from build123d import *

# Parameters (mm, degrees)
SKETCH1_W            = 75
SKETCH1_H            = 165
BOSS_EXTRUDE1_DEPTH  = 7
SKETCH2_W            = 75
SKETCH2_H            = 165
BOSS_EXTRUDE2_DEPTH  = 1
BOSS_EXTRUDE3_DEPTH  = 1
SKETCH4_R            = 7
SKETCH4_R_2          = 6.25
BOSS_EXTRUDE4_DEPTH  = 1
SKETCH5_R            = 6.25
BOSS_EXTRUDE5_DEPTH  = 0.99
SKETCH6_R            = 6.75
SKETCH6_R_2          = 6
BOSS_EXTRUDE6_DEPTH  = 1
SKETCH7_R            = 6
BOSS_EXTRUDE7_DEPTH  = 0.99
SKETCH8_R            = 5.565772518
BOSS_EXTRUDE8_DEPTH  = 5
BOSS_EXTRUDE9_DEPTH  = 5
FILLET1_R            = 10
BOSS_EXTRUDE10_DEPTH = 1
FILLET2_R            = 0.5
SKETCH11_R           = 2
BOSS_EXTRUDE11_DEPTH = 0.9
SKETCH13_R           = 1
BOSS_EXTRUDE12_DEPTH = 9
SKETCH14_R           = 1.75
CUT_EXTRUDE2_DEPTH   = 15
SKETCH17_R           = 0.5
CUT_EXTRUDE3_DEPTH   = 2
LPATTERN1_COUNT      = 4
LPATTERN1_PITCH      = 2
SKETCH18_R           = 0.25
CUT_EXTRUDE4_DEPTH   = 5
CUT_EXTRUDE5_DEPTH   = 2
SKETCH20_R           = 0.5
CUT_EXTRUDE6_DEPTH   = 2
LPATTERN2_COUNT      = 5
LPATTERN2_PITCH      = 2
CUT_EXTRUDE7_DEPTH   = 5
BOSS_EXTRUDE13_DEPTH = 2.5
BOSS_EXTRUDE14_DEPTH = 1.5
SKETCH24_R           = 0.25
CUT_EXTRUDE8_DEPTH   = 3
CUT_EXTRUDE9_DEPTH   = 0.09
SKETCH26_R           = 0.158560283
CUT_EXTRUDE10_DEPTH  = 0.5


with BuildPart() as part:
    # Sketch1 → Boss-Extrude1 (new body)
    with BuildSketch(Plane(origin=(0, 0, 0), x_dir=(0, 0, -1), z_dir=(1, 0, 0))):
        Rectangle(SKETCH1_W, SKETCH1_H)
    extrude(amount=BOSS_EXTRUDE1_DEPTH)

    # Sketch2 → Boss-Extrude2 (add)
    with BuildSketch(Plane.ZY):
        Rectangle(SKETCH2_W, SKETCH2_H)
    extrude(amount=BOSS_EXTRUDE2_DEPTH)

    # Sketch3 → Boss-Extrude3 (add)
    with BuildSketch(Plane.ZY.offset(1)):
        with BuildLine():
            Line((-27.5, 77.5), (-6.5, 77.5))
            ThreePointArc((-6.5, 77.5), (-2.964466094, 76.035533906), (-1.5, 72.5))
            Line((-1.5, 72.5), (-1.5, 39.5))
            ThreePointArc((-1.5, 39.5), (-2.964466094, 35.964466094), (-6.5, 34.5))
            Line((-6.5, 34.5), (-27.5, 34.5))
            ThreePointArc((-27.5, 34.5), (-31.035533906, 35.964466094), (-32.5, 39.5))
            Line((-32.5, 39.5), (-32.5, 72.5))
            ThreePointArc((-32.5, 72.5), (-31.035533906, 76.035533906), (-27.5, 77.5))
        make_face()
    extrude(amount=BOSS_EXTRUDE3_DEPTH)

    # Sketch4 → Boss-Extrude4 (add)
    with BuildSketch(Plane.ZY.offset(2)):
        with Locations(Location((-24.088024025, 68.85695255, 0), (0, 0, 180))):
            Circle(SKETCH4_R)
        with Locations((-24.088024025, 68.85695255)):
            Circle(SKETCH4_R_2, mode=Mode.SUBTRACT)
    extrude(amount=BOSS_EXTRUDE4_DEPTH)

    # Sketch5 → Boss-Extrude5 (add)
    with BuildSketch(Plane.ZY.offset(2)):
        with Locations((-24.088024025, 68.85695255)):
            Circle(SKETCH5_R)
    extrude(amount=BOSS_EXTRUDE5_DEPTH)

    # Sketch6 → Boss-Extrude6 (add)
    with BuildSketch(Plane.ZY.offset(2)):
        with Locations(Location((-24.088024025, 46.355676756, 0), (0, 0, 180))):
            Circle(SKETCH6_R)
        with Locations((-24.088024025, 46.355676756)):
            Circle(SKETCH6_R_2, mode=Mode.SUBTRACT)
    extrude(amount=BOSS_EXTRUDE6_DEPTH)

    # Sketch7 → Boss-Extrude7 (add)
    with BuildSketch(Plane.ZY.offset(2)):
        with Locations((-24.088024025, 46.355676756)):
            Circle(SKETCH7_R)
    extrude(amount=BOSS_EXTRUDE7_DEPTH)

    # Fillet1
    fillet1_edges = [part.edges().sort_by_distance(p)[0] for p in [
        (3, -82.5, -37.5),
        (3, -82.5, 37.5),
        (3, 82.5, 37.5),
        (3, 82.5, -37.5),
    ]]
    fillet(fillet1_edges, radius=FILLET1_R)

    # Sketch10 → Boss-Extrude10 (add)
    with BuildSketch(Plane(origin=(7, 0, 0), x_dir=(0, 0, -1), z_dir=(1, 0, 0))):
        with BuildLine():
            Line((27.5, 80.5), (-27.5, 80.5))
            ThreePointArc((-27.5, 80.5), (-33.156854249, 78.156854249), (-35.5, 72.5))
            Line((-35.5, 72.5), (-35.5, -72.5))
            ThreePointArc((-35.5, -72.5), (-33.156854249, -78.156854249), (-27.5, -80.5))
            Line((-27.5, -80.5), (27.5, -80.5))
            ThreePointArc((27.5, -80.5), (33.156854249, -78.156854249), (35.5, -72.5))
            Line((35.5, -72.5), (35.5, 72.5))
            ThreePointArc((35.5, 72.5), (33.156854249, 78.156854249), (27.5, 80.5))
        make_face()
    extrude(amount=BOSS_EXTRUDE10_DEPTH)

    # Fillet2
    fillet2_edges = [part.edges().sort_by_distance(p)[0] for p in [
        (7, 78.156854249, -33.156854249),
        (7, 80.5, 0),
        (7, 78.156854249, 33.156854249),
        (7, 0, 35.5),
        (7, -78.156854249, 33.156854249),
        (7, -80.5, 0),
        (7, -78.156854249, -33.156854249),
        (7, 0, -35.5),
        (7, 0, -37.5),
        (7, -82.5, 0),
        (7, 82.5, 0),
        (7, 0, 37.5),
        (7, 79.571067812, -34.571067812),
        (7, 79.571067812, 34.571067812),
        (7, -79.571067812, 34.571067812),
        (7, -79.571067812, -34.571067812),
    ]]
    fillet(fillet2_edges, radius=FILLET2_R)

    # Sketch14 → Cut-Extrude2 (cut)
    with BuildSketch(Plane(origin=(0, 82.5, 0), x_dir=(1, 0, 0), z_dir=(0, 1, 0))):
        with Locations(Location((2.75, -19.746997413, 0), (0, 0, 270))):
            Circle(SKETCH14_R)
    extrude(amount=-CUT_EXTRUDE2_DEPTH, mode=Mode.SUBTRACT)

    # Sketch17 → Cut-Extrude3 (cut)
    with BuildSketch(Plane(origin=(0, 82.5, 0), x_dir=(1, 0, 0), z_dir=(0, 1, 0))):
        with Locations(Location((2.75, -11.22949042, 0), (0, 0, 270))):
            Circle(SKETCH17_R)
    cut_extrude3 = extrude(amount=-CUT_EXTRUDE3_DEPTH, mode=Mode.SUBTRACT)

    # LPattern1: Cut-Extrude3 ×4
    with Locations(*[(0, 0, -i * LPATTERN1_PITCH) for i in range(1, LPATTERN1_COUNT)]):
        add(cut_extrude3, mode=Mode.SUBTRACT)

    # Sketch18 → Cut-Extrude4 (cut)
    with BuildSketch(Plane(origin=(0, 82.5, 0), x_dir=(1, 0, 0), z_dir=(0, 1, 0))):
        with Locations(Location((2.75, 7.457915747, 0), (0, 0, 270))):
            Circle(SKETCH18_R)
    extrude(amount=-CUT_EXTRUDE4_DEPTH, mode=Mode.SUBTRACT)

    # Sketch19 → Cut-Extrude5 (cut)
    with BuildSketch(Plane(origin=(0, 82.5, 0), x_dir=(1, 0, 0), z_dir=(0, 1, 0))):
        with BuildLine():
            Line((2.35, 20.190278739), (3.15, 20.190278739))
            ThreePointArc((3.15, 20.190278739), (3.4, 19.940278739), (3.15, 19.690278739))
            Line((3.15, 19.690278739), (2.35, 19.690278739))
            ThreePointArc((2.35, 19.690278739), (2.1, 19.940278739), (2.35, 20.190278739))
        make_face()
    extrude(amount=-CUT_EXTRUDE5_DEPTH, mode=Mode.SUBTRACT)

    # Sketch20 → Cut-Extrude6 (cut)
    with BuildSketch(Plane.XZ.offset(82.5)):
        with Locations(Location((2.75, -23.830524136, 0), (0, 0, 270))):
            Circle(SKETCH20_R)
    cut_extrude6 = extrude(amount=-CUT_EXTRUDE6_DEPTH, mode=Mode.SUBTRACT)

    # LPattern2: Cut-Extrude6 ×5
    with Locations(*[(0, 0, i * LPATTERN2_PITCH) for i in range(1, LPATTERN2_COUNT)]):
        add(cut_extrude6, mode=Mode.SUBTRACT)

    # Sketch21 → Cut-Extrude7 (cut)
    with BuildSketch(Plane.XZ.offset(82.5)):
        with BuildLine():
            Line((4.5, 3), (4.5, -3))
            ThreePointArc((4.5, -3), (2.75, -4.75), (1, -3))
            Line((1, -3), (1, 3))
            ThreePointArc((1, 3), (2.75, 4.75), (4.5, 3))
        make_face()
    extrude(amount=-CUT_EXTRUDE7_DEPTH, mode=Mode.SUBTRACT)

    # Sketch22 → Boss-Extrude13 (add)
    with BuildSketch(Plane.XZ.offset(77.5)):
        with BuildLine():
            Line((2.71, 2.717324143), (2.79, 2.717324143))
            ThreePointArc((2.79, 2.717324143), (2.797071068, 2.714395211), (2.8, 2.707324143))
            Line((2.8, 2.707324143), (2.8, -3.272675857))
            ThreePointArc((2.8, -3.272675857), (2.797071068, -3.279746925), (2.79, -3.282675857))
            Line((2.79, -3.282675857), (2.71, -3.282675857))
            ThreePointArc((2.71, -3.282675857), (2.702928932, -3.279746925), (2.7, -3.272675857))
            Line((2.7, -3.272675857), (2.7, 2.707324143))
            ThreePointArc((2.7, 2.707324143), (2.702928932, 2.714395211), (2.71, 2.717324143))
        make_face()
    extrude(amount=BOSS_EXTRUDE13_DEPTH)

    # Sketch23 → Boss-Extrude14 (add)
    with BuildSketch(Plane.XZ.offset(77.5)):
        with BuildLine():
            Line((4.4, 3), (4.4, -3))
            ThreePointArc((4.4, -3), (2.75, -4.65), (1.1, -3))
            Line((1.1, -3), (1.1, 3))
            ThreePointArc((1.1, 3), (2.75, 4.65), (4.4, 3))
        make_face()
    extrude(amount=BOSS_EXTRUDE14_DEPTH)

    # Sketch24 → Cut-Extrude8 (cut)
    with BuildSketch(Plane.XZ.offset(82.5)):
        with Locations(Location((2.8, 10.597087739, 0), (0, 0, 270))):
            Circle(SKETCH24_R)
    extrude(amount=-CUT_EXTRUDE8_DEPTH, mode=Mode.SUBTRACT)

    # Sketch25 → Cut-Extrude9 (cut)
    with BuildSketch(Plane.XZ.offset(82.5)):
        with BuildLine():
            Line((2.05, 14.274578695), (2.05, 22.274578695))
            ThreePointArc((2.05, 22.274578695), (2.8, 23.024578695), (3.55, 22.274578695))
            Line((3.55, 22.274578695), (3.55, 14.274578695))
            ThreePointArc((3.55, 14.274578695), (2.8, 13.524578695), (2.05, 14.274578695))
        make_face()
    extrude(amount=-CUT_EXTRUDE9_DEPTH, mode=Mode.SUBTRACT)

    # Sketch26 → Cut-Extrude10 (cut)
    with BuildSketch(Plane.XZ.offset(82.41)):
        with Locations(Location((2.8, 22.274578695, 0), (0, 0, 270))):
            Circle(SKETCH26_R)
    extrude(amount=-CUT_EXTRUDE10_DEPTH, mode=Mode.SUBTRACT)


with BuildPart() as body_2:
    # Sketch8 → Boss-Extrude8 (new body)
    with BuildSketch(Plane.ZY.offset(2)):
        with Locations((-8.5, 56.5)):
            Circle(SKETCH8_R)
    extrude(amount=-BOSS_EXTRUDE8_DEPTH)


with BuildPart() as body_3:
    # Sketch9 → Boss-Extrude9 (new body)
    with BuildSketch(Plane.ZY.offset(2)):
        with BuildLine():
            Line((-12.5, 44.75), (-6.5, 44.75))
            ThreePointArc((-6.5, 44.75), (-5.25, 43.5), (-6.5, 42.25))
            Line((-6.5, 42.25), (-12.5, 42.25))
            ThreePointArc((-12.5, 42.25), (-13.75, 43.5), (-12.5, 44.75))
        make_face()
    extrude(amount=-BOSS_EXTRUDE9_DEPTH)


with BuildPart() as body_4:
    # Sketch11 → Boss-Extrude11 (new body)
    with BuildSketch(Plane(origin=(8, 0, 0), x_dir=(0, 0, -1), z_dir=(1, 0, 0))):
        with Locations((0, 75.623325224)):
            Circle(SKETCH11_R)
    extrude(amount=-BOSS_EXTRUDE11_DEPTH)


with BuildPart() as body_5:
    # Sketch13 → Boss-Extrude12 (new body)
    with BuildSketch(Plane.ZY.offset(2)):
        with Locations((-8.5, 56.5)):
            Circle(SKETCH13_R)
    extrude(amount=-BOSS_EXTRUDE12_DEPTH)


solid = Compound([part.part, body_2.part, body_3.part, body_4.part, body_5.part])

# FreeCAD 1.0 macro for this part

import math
import FreeCAD as App
import Part
import Sketcher

V = App.Vector


def edges_at(feature, points):
    """Names of the edges that pass closest to the given points."""
    edges = feature.Shape.Edges
    near = lambda p: min(range(len(edges)), key=lambda i: edges[i].distToShape(Part.Vertex(*p))[0])
    return sorted({f"Edge{near(p) + 1}" for p in points})


def add_polygon(sketch, points):
    """Adds a closed chain of lines whose ends are joined by coincident constraints."""
    first, n = sketch.GeometryCount, len(points)
    for a, b in zip(points, points[1:] + points[:1]):
        sketch.addGeometry(Part.LineSegment(App.Vector(*a, 0), App.Vector(*b, 0)), False)
    for i in range(n):
        sketch.addConstraint(Sketcher.Constraint("Coincident", first + i, 2, first + (i + 1) % n, 1))

doc = App.newDocument("Part")
body = doc.addObject("PartDesign::Body", "Body")

sketch1 = body.newObject("Sketcher::SketchObject", "Sketch")
sketch1.AttachmentSupport = (doc.getObject("YZ_Plane"), [""])
sketch1.MapMode = "FlatFace"
add_polygon(sketch1, [(82, 38), (-82, 38), (-82, -38), (82, -38)])
sketch1.addConstraint([
    Sketcher.Constraint("Horizontal", 0),
    Sketcher.Constraint("Vertical", 1),
    Sketcher.Constraint("Horizontal", 2),
    Sketcher.Constraint("Vertical", 3),
    Sketcher.Constraint("Symmetric", 0, 2, 2, 2, -1, 1),
    Sketcher.Constraint("DistanceX", 0, 2, 0, 1, 165.0),
    Sketcher.Constraint("DistanceY", 1, 2, 1, 1, 75.0),
])
pad1 = body.newObject("PartDesign::Pad", "Pad")
pad1.Profile = sketch1
pad1.Length = 7

sketch2 = body.newObject("Sketcher::SketchObject", "Sketch001")
sketch2.AttachmentSupport = (doc.getObject("YZ_Plane"), [""])
sketch2.MapMode = "FlatFace"
add_polygon(sketch2, [(82, -38), (-82, -38), (-82, 38), (82, 38)])
sketch2.addConstraint([
    Sketcher.Constraint("Horizontal", 0),
    Sketcher.Constraint("Vertical", 1),
    Sketcher.Constraint("Horizontal", 2),
    Sketcher.Constraint("Vertical", 3),
    Sketcher.Constraint("Symmetric", 0, 2, 2, 2, -1, 1),
    Sketcher.Constraint("DistanceX", 0, 2, 0, 1, 165.0),
    Sketcher.Constraint("DistanceY", 1, 1, 1, 2, 75.0),
])
pad2 = body.newObject("PartDesign::Pad", "Pad001")
pad2.Profile = sketch2
pad2.Length = 1
pad2.Reversed = True

sketch3 = body.newObject("Sketcher::SketchObject", "Sketch002")
sketch3.AttachmentSupport = (doc.getObject("YZ_Plane"), [""])
sketch3.MapMode = "FlatFace"
sketch3.AttachmentOffset = App.Placement(V(0, 0, -1), App.Rotation())
sketch3.addGeometry([
    Part.LineSegment(V(78, -6, 0), V(78, -28, 0)),
    Part.ArcOfCircle(Part.Circle(V(72, -28, 0), V(0, 0, 1), 5), math.radians(-90), math.radians(0)),
    Part.LineSegment(V(72, -32, 0), V(40, -32, 0)),
    Part.ArcOfCircle(Part.Circle(V(40, -28, 0), V(0, 0, 1), 5), math.radians(180), math.radians(270)),
    Part.LineSegment(V(34, -28, 0), V(34, -6, 0)),
    Part.ArcOfCircle(Part.Circle(V(40, -6, 0), V(0, 0, 1), 5), math.radians(90), math.radians(180)),
    Part.LineSegment(V(40, -2, 0), V(72, -2, 0)),
    Part.ArcOfCircle(Part.Circle(V(72, -6, 0), V(0, 0, 1), 5), math.radians(0), math.radians(90)),
], False)
sketch3.addConstraint([
    Sketcher.Constraint("Tangent", 0, 2, 1, 2),
    Sketcher.Constraint("Tangent", 1, 1, 2, 1),
    Sketcher.Constraint("Tangent", 2, 2, 3, 2),
    Sketcher.Constraint("Tangent", 3, 1, 4, 1),
    Sketcher.Constraint("Tangent", 4, 2, 5, 2),
    Sketcher.Constraint("Tangent", 5, 1, 6, 1),
    Sketcher.Constraint("Tangent", 6, 2, 7, 2),
    Sketcher.Constraint("Tangent", 7, 1, 0, 1),
    Sketcher.Constraint("Vertical", 0),
    Sketcher.Constraint("Horizontal", 2),
    Sketcher.Constraint("Vertical", 4),
    Sketcher.Constraint("Horizontal", 6),
    Sketcher.Constraint("Equal", 1, 3),
    Sketcher.Constraint("Equal", 3, 5),
    Sketcher.Constraint("Equal", 5, 7),
    Sketcher.Constraint("Radius", 1, 5.0),
    Sketcher.Constraint("DistanceX", 2, 2, 2, 1, 33.0),
    Sketcher.Constraint("DistanceY", 0, 2, 0, 1, 21.0),
    Sketcher.Constraint("DistanceX", -1, 1, 1, 3, 72.5),
    Sketcher.Constraint("DistanceY", 1, 3, -1, 1, 27.5),
])
pad3 = body.newObject("PartDesign::Pad", "Pad002")
pad3.Profile = sketch3
pad3.Length = 1
pad3.Reversed = True

sketch4 = body.newObject("Sketcher::SketchObject", "Sketch003")
sketch4.AttachmentSupport = (doc.getObject("YZ_Plane"), [""])
sketch4.MapMode = "FlatFace"
sketch4.AttachmentOffset = App.Placement(V(0, 0, -2), App.Rotation())
sketch4.addGeometry([
    Part.Circle(V(69, -24, 0), V(0, 0, 1), 7),
    Part.Circle(V(69, -24, 0), V(0, 0, 1), 6),
], False)
sketch4.addConstraint([
    Sketcher.Constraint("Coincident", 1, 3, 0, 3),
    Sketcher.Constraint("Diameter", 0, 14.0),
    Sketcher.Constraint("Diameter", 1, 12.5),
    Sketcher.Constraint("DistanceX", -1, 1, 0, 3, 68.856953),
    Sketcher.Constraint("DistanceY", 0, 3, -1, 1, 24.088024),
])
pad4 = body.newObject("PartDesign::Pad", "Pad003")
pad4.Profile = sketch4
pad4.Length = 1
pad4.Reversed = True

sketch5 = body.newObject("Sketcher::SketchObject", "Sketch004")
sketch5.AttachmentSupport = (doc.getObject("YZ_Plane"), [""])
sketch5.MapMode = "FlatFace"
sketch5.AttachmentOffset = App.Placement(V(0, 0, -2), App.Rotation())
sketch5.addGeometry(Part.Circle(V(69, -24, 0), V(0, 0, 1), 6), False)
sketch5.addConstraint([
    Sketcher.Constraint("Diameter", 0, 12.5),
    Sketcher.Constraint("DistanceX", -1, 1, 0, 3, 68.856953),
    Sketcher.Constraint("DistanceY", 0, 3, -1, 1, 24.088024),
])
pad5 = body.newObject("PartDesign::Pad", "Pad004")
pad5.Profile = sketch5
pad5.Length = 0.99
pad5.Reversed = True

sketch6 = body.newObject("Sketcher::SketchObject", "Sketch005")
sketch6.AttachmentSupport = (doc.getObject("YZ_Plane"), [""])
sketch6.MapMode = "FlatFace"
sketch6.AttachmentOffset = App.Placement(V(0, 0, -2), App.Rotation())
sketch6.addGeometry([
    Part.Circle(V(46, -24, 0), V(0, 0, 1), 7),
    Part.Circle(V(46, -24, 0), V(0, 0, 1), 6),
], False)
sketch6.addConstraint([
    Sketcher.Constraint("Coincident", 1, 3, 0, 3),
    Sketcher.Constraint("Diameter", 1, 12.0),
    Sketcher.Constraint("Diameter", 0, 13.5),
    Sketcher.Constraint("DistanceX", -1, 1, 0, 3, 46.355677),
    Sketcher.Constraint("DistanceY", 0, 3, -1, 1, 24.088024),
])
pad6 = body.newObject("PartDesign::Pad", "Pad005")
pad6.Profile = sketch6
pad6.Length = 1
pad6.Reversed = True

sketch7 = body.newObject("Sketcher::SketchObject", "Sketch006")
sketch7.AttachmentSupport = (doc.getObject("YZ_Plane"), [""])
sketch7.MapMode = "FlatFace"
sketch7.AttachmentOffset = App.Placement(V(0, 0, -2), App.Rotation())
sketch7.addGeometry(Part.Circle(V(46, -24, 0), V(0, 0, 1), 6), False)
sketch7.addConstraint([
    Sketcher.Constraint("Diameter", 0, 12.0),
    Sketcher.Constraint("DistanceX", -1, 1, 0, 3, 46.355677),
    Sketcher.Constraint("DistanceY", 0, 3, -1, 1, 24.088024),
])
pad7 = body.newObject("PartDesign::Pad", "Pad006")
pad7.Profile = sketch7
pad7.Length = 0.99
pad7.Reversed = True
doc.recompute()

fillet = body.newObject("PartDesign::Fillet", "Fillet")
fillet.Base = (pad7, edges_at(pad7, [
    (3, -82.5, -37.5),
    (3, -82.5, 37.5),
    (3, 82.5, 37.5),
    (3, 82.5, -37.5),
]))
fillet.Radius = 10

sketch8 = body.newObject("Sketcher::SketchObject", "Sketch007")
sketch8.AttachmentSupport = (doc.getObject("YZ_Plane"), [""])
sketch8.MapMode = "FlatFace"
sketch8.AttachmentOffset = App.Placement(V(0, 0, 7), App.Rotation())
sketch8.addGeometry([
    Part.LineSegment(V(80, -28, 0), V(80, 28, 0)),
    Part.ArcOfCircle(Part.Circle(V(72, 27, 0), V(0, 0, 1), 8), math.radians(0), math.radians(90)),
    Part.LineSegment(V(72, 36, 0), V(-72, 36, 0)),
    Part.ArcOfCircle(Part.Circle(V(-72, 27, 0), V(0, 0, 1), 8), math.radians(90), math.radians(180)),
    Part.LineSegment(V(-80, 28, 0), V(-80, -28, 0)),
    Part.ArcOfCircle(Part.Circle(V(-72, -27, 0), V(0, 0, 1), 8), math.radians(-180), math.radians(-90)),
    Part.LineSegment(V(-72, -36, 0), V(72, -36, 0)),
    Part.ArcOfCircle(Part.Circle(V(72, -27, 0), V(0, 0, 1), 8), math.radians(-90), math.radians(0)),
], False)
sketch8.addConstraint([
    Sketcher.Constraint("Tangent", 0, 2, 1, 1),
    Sketcher.Constraint("Tangent", 1, 2, 2, 1),
    Sketcher.Constraint("Tangent", 2, 2, 3, 1),
    Sketcher.Constraint("Tangent", 3, 2, 4, 1),
    Sketcher.Constraint("Tangent", 4, 2, 5, 1),
    Sketcher.Constraint("Tangent", 5, 2, 6, 1),
    Sketcher.Constraint("Tangent", 6, 2, 7, 1),
    Sketcher.Constraint("Tangent", 7, 2, 0, 1),
    Sketcher.Constraint("Vertical", 0),
    Sketcher.Constraint("Horizontal", 2),
    Sketcher.Constraint("Vertical", 4),
    Sketcher.Constraint("Horizontal", 6),
    Sketcher.Constraint("Equal", 1, 3),
    Sketcher.Constraint("Equal", 3, 5),
    Sketcher.Constraint("Equal", 5, 7),
    Sketcher.Constraint("Symmetric", 1, 3, 5, 3, -1, 1),
    Sketcher.Constraint("Radius", 1, 8.0),
    Sketcher.Constraint("DistanceX", 2, 2, 2, 1, 145.0),
    Sketcher.Constraint("DistanceY", 0, 1, 0, 2, 55.0),
])
pad8 = body.newObject("PartDesign::Pad", "Pad007")
pad8.Profile = sketch8
pad8.Length = 1
doc.recompute()

fillet2 = body.newObject("PartDesign::Fillet", "Fillet001")
fillet2.Base = (pad8, edges_at(pad8, [
    (7, 78.157, -33.157),
    (7, 80.5, 0),
    (7, 78.157, 33.157),
    (7, 0, 35.5),
    (7, -78.157, 33.157),
    (7, -80.5, 0),
    (7, -78.157, -33.157),
    (7, 0, -35.5),
    (7, 0, -37.5),
    (7, -82.5, 0),
    (7, 82.5, 0),
    (7, 0, 37.5),
    (7, 79.571, -34.571),
    (7, 79.571, 34.571),
    (7, -79.571, 34.571),
    (7, -79.571, -34.571),
]))
fillet2.Radius = 0.5

sketch9 = body.newObject("Sketcher::SketchObject", "Sketch008")
sketch9.AttachmentSupport = (doc.getObject("XZ_Plane"), [""])
sketch9.MapMode = "FlatFace"
sketch9.AttachmentOffset = App.Placement(V(0, 0, -82.5), App.Rotation())
sketch9.addGeometry(Part.Circle(V(2.8, 19.7, 0), V(0, 0, 1), 1.8), False)
sketch9.addConstraint([
    Sketcher.Constraint("Diameter", 0, 3.5),
    Sketcher.Constraint("DistanceX", -1, 1, 0, 3, 2.75),
    Sketcher.Constraint("DistanceY", -1, 1, 0, 3, 19.746997),
])
pocket1 = body.newObject("PartDesign::Pocket", "Pocket")
pocket1.Profile = sketch9
pocket1.Length = 15
pocket1.Reversed = True

sketch10 = body.newObject("Sketcher::SketchObject", "Sketch009")
sketch10.AttachmentSupport = (doc.getObject("XZ_Plane"), [""])
sketch10.MapMode = "FlatFace"
sketch10.AttachmentOffset = App.Placement(V(0, 0, -82.5), App.Rotation())
sketch10.addGeometry(Part.Circle(V(2.8, 11.2, 0), V(0, 0, 1), 0.5), False)
sketch10.addConstraint([
    Sketcher.Constraint("Diameter", 0, 1.0),
    Sketcher.Constraint("DistanceX", -1, 1, 0, 3, 2.75),
    Sketcher.Constraint("DistanceY", -1, 1, 0, 3, 11.22949),
])
pocket2 = body.newObject("PartDesign::Pocket", "Pocket001")
pocket2.Profile = sketch10
pocket2.Length = 2
pocket2.Reversed = True
doc.recompute()

linearpattern = body.newObject("PartDesign::LinearPattern", "LinearPattern")
linearpattern.Originals = [pocket2]
linearpattern.Direction = (doc.getObject("Z_Axis"), [""])
linearpattern.Mode = "offset"
linearpattern.Offset = 2
linearpattern.Occurrences = 4
linearpattern.Reversed = True
body.Tip = linearpattern

sketch11 = body.newObject("Sketcher::SketchObject", "Sketch010")
sketch11.AttachmentSupport = (doc.getObject("XZ_Plane"), [""])
sketch11.MapMode = "FlatFace"
sketch11.AttachmentOffset = App.Placement(V(0, 0, -82.5), App.Rotation())
sketch11.addGeometry(Part.Circle(V(2.75, -7.46, 0), V(0, 0, 1), 0.25), False)
sketch11.addConstraint([
    Sketcher.Constraint("Diameter", 0, 0.5),
    Sketcher.Constraint("DistanceX", -1, 1, 0, 3, 2.75),
    Sketcher.Constraint("DistanceY", 0, 3, -1, 1, 7.457916),
])
pocket3 = body.newObject("PartDesign::Pocket", "Pocket002")
pocket3.Profile = sketch11
pocket3.Length = 5
pocket3.Reversed = True

sketch12 = body.newObject("Sketcher::SketchObject", "Sketch011")
sketch12.AttachmentSupport = (doc.getObject("XZ_Plane"), [""])
sketch12.MapMode = "FlatFace"
sketch12.AttachmentOffset = App.Placement(V(0, 0, -82.5), App.Rotation())
sketch12.addGeometry([
    Part.LineSegment(V(3.15, -20.19, 0), V(2.35, -20.19, 0)),
    Part.ArcOfCircle(Part.Circle(V(2.35, -19.94, 0), V(0, 0, 1), 0.25), math.radians(90), math.radians(270)),
    Part.LineSegment(V(2.35, -19.69, 0), V(3.15, -19.69, 0)),
    Part.ArcOfCircle(Part.Circle(V(3.15, -19.94, 0), V(0, 0, 1), 0.25), math.radians(-90), math.radians(90)),
], False)
sketch12.addConstraint([
    Sketcher.Constraint("Tangent", 0, 2, 1, 2),
    Sketcher.Constraint("Tangent", 1, 1, 2, 1),
    Sketcher.Constraint("Tangent", 2, 2, 3, 2),
    Sketcher.Constraint("Tangent", 3, 1, 0, 1),
    Sketcher.Constraint("Horizontal", 0),
    Sketcher.Constraint("Horizontal", 2),
    Sketcher.Constraint("Radius", 1, 0.25),
    Sketcher.Constraint("DistanceX", 0, 2, 0, 1, 0.8),
    Sketcher.Constraint("DistanceX", -1, 1, 1, 3, 2.35),
    Sketcher.Constraint("DistanceY", 1, 3, -1, 1, 19.940279),
])
pocket4 = body.newObject("PartDesign::Pocket", "Pocket003")
pocket4.Profile = sketch12
pocket4.Length = 2
pocket4.Reversed = True

sketch13 = body.newObject("Sketcher::SketchObject", "Sketch012")
sketch13.AttachmentSupport = (doc.getObject("XZ_Plane"), [""])
sketch13.MapMode = "FlatFace"
sketch13.AttachmentOffset = App.Placement(V(0, 0, 82.5), App.Rotation())
sketch13.addGeometry(Part.Circle(V(2.8, -23.8, 0), V(0, 0, 1), 0.5), False)
sketch13.addConstraint([
    Sketcher.Constraint("Diameter", 0, 1.0),
    Sketcher.Constraint("DistanceX", -1, 1, 0, 3, 2.75),
    Sketcher.Constraint("DistanceY", 0, 3, -1, 1, 23.830524),
])
pocket5 = body.newObject("PartDesign::Pocket", "Pocket004")
pocket5.Profile = sketch13
pocket5.Length = 2
doc.recompute()

linearpattern2 = body.newObject("PartDesign::LinearPattern", "LinearPattern001")
linearpattern2.Originals = [pocket5]
linearpattern2.Direction = (doc.getObject("Z_Axis"), [""])
linearpattern2.Mode = "offset"
linearpattern2.Offset = 2
linearpattern2.Occurrences = 5
body.Tip = linearpattern2

sketch14 = body.newObject("Sketcher::SketchObject", "Sketch013")
sketch14.AttachmentSupport = (doc.getObject("XZ_Plane"), [""])
sketch14.MapMode = "FlatFace"
sketch14.AttachmentOffset = App.Placement(V(0, 0, 82.5), App.Rotation())
sketch14.addGeometry([
    Part.LineSegment(V(4.5, -3, 0), V(4.5, 3, 0)),
    Part.ArcOfCircle(Part.Circle(V(2.8, 3, 0), V(0, 0, 1), 1.8), math.radians(0), math.radians(180)),
    Part.LineSegment(V(1, 3, 0), V(1, -3, 0)),
    Part.ArcOfCircle(Part.Circle(V(2.8, -3, 0), V(0, 0, 1), 1.8), math.radians(180), math.radians(360)),
], False)
sketch14.addConstraint([
    Sketcher.Constraint("Tangent", 0, 2, 1, 1),
    Sketcher.Constraint("Tangent", 1, 2, 2, 1),
    Sketcher.Constraint("Tangent", 2, 2, 3, 1),
    Sketcher.Constraint("Tangent", 3, 2, 0, 1),
    Sketcher.Constraint("Vertical", 0),
    Sketcher.Constraint("Vertical", 2),
    Sketcher.Constraint("DistanceY", 0, 1, 0, 2, 6.0),
    Sketcher.Constraint("Radius", 1, 1.75),
    Sketcher.Constraint("DistanceY", -1, 1, 1, 3, 3.0),
    Sketcher.Constraint("DistanceX", -1, 1, 1, 2, 1.0),
])
pocket6 = body.newObject("PartDesign::Pocket", "Pocket005")
pocket6.Profile = sketch14
pocket6.Length = 5

sketch15 = body.newObject("Sketcher::SketchObject", "Sketch014")
sketch15.AttachmentSupport = (doc.getObject("XZ_Plane"), [""])
sketch15.MapMode = "FlatFace"
sketch15.AttachmentOffset = App.Placement(V(0, 0, 77.5), App.Rotation())
sketch15.addGeometry([
    Part.LineSegment(V(2.79, 2.717, 0), V(2.71, 2.717, 0)),
    Part.ArcOfCircle(Part.Circle(V(2.71, 2.707, 0), V(0, 0, 1), 0.01), math.radians(90), math.radians(180)),
    Part.LineSegment(V(2.7, 2.707, 0), V(2.7, -3.273, 0)),
    Part.ArcOfCircle(Part.Circle(V(2.71, -3.273, 0), V(0, 0, 1), 0.01), math.radians(180), math.radians(270)),
    Part.LineSegment(V(2.71, -3.283, 0), V(2.79, -3.283, 0)),
    Part.ArcOfCircle(Part.Circle(V(2.79, -3.273, 0), V(0, 0, 1), 0.01), math.radians(-90), math.radians(0)),
    Part.LineSegment(V(2.8, -3.273, 0), V(2.8, 2.707, 0)),
    Part.ArcOfCircle(Part.Circle(V(2.79, 2.707, 0), V(0, 0, 1), 0.01), math.radians(0), math.radians(90)),
], False)
sketch15.addConstraint([
    Sketcher.Constraint("Tangent", 0, 2, 1, 1),
    Sketcher.Constraint("Tangent", 1, 2, 2, 1),
    Sketcher.Constraint("Tangent", 2, 2, 3, 1),
    Sketcher.Constraint("Tangent", 3, 2, 4, 1),
    Sketcher.Constraint("Tangent", 4, 2, 5, 1),
    Sketcher.Constraint("Tangent", 5, 2, 6, 1),
    Sketcher.Constraint("Tangent", 6, 2, 7, 1),
    Sketcher.Constraint("Tangent", 7, 2, 0, 1),
    Sketcher.Constraint("Horizontal", 0),
    Sketcher.Constraint("Vertical", 2),
    Sketcher.Constraint("Horizontal", 4),
    Sketcher.Constraint("Vertical", 6),
    Sketcher.Constraint("Equal", 1, 3),
    Sketcher.Constraint("Equal", 3, 5),
    Sketcher.Constraint("Equal", 5, 7),
    Sketcher.Constraint("Radius", 1, 0.01),
    Sketcher.Constraint("DistanceX", 0, 2, 0, 1, 0.08),
    Sketcher.Constraint("DistanceY", 2, 2, 2, 1, 5.98),
    Sketcher.Constraint("DistanceX", -1, 1, 1, 2, 2.7),
    Sketcher.Constraint("DistanceY", -1, 1, 1, 3, 2.707324),
])
pad9 = body.newObject("PartDesign::Pad", "Pad008")
pad9.Profile = sketch15
pad9.Length = 2.5

sketch16 = body.newObject("Sketcher::SketchObject", "Sketch015")
sketch16.AttachmentSupport = (doc.getObject("XZ_Plane"), [""])
sketch16.MapMode = "FlatFace"
sketch16.AttachmentOffset = App.Placement(V(0, 0, 77.5), App.Rotation())
sketch16.addGeometry([
    Part.LineSegment(V(4.4, -3, 0), V(4.4, 3, 0)),
    Part.ArcOfCircle(Part.Circle(V(2.8, 3, 0), V(0, 0, 1), 1.6), math.radians(0), math.radians(180)),
    Part.LineSegment(V(1.1, 3, 0), V(1.1, -3, 0)),
    Part.ArcOfCircle(Part.Circle(V(2.8, -3, 0), V(0, 0, 1), 1.6), math.radians(180), math.radians(360)),
], False)
sketch16.addConstraint([
    Sketcher.Constraint("Tangent", 0, 2, 1, 1),
    Sketcher.Constraint("Tangent", 1, 2, 2, 1),
    Sketcher.Constraint("Tangent", 2, 2, 3, 1),
    Sketcher.Constraint("Tangent", 3, 2, 0, 1),
    Sketcher.Constraint("Vertical", 0),
    Sketcher.Constraint("Vertical", 2),
    Sketcher.Constraint("DistanceY", 0, 1, 0, 2, 6.0),
    Sketcher.Constraint("Radius", 1, 1.65),
    Sketcher.Constraint("DistanceY", -1, 1, 1, 3, 3.0),
    Sketcher.Constraint("DistanceX", -1, 1, 0, 2, 4.4),
])
pad10 = body.newObject("PartDesign::Pad", "Pad009")
pad10.Profile = sketch16
pad10.Length = 1.5

sketch17 = body.newObject("Sketcher::SketchObject", "Sketch016")
sketch17.AttachmentSupport = (doc.getObject("XZ_Plane"), [""])
sketch17.MapMode = "FlatFace"
sketch17.AttachmentOffset = App.Placement(V(0, 0, 82.5), App.Rotation())
sketch17.addGeometry(Part.Circle(V(2.8, 10.6, 0), V(0, 0, 1), 0.25), False)
sketch17.addConstraint([
    Sketcher.Constraint("Diameter", 0, 0.5),
    Sketcher.Constraint("DistanceX", -1, 1, 0, 3, 2.8),
    Sketcher.Constraint("DistanceY", -1, 1, 0, 3, 10.597088),
])
pocket7 = body.newObject("PartDesign::Pocket", "Pocket006")
pocket7.Profile = sketch17
pocket7.Length = 3

sketch18 = body.newObject("Sketcher::SketchObject", "Sketch017")
sketch18.AttachmentSupport = (doc.getObject("XZ_Plane"), [""])
sketch18.MapMode = "FlatFace"
sketch18.AttachmentOffset = App.Placement(V(0, 0, 82.5), App.Rotation())
sketch18.addGeometry([
    Part.LineSegment(V(2, 22.3, 0), V(2, 14.3, 0)),
    Part.ArcOfCircle(Part.Circle(V(2.8, 14.3, 0), V(0, 0, 1), 0.8), math.radians(180), math.radians(360)),
    Part.LineSegment(V(3.5, 14.3, 0), V(3.5, 22.3, 0)),
    Part.ArcOfCircle(Part.Circle(V(2.8, 22.3, 0), V(0, 0, 1), 0.8), math.radians(0), math.radians(180)),
], False)
sketch18.addConstraint([
    Sketcher.Constraint("Tangent", 0, 2, 1, 1),
    Sketcher.Constraint("Tangent", 1, 2, 2, 1),
    Sketcher.Constraint("Tangent", 2, 2, 3, 1),
    Sketcher.Constraint("Tangent", 3, 2, 0, 1),
    Sketcher.Constraint("Vertical", 0),
    Sketcher.Constraint("Vertical", 2),
    Sketcher.Constraint("DistanceY", 0, 2, 0, 1, 8.0),
    Sketcher.Constraint("Radius", 1, 0.75),
    Sketcher.Constraint("DistanceX", -1, 1, 1, 3, 2.8),
    Sketcher.Constraint("DistanceY", -1, 1, 1, 3, 14.274579),
])
pocket8 = body.newObject("PartDesign::Pocket", "Pocket007")
pocket8.Profile = sketch18
pocket8.Length = 0.09

sketch19 = body.newObject("Sketcher::SketchObject", "Sketch018")
sketch19.AttachmentSupport = (doc.getObject("XZ_Plane"), [""])
sketch19.MapMode = "FlatFace"
sketch19.AttachmentOffset = App.Placement(V(0, 0, 82.41), App.Rotation())
sketch19.addGeometry(Part.Circle(V(2.8, 22.27, 0), V(0, 0, 1), 0.16), False)
sketch19.addConstraint([
    Sketcher.Constraint("DistanceX", -1, 1, 0, 3, 2.8),
    Sketcher.Constraint("Diameter", 0, 0.317121),
    Sketcher.Constraint("DistanceY", -1, 1, 0, 3, 22.274579),
])
pocket9 = body.newObject("PartDesign::Pocket", "Pocket008")
pocket9.Profile = sketch19
pocket9.Length = 0.5
body2 = doc.addObject("PartDesign::Body", "Body001")

sketch20 = body2.newObject("Sketcher::SketchObject", "Sketch019")
sketch20.AttachmentSupport = (doc.getObject("YZ_Plane001"), [""])
sketch20.MapMode = "FlatFace"
sketch20.AttachmentOffset = App.Placement(V(0, 0, -2), App.Rotation())
sketch20.addGeometry(Part.Circle(V(56, -8, 0), V(0, 0, 1), 6), False)
sketch20.addConstraint([
    Sketcher.Constraint("DistanceX", -1, 1, 0, 3, 56.5),
    Sketcher.Constraint("DistanceY", 0, 3, -1, 1, 8.5),
    Sketcher.Constraint("Diameter", 0, 11.131545),
])
pad11 = body2.newObject("PartDesign::Pad", "Pad010")
pad11.Profile = sketch20
pad11.Length = 5
body3 = doc.addObject("PartDesign::Body", "Body002")

sketch21 = body3.newObject("Sketcher::SketchObject", "Sketch020")
sketch21.AttachmentSupport = (doc.getObject("YZ_Plane002"), [""])
sketch21.MapMode = "FlatFace"
sketch21.AttachmentOffset = App.Placement(V(0, 0, -2), App.Rotation())
sketch21.addGeometry([
    Part.LineSegment(V(44.8, -6.5, 0), V(44.8, -12.5, 0)),
    Part.ArcOfCircle(Part.Circle(V(43.5, -12.5, 0), V(0, 0, 1), 1.2), math.radians(180), math.radians(360)),
    Part.LineSegment(V(42.2, -12.5, 0), V(42.2, -6.5, 0)),
    Part.ArcOfCircle(Part.Circle(V(43.5, -6.5, 0), V(0, 0, 1), 1.2), math.radians(0), math.radians(180)),
], False)
sketch21.addConstraint([
    Sketcher.Constraint("Tangent", 0, 2, 1, 2),
    Sketcher.Constraint("Tangent", 1, 1, 2, 1),
    Sketcher.Constraint("Tangent", 2, 2, 3, 2),
    Sketcher.Constraint("Tangent", 3, 1, 0, 1),
    Sketcher.Constraint("Vertical", 0),
    Sketcher.Constraint("Vertical", 2),
    Sketcher.Constraint("DistanceY", 0, 2, 0, 1, 6.0),
    Sketcher.Constraint("Radius", 1, 1.25),
    Sketcher.Constraint("DistanceX", -1, 1, 1, 3, 43.5),
    Sketcher.Constraint("DistanceY", 1, 3, -1, 1, 12.5),
])
pad12 = body3.newObject("PartDesign::Pad", "Pad011")
pad12.Profile = sketch21
pad12.Length = 5
body4 = doc.addObject("PartDesign::Body", "Body003")

sketch22 = body4.newObject("Sketcher::SketchObject", "Sketch021")
sketch22.AttachmentSupport = (doc.getObject("YZ_Plane003"), [""])
sketch22.MapMode = "FlatFace"
sketch22.AttachmentOffset = App.Placement(V(0, 0, 8), App.Rotation())
sketch22.addGeometry(Part.Circle(V(75.6, 0, 0), V(0, 0, 1), 2), False)
sketch22.addConstraint([
    Sketcher.Constraint("PointOnObject", 0, 3, -1),
    Sketcher.Constraint("Diameter", 0, 4.0),
    Sketcher.Constraint("DistanceX", -1, 1, 0, 3, 75.623325),
])
pad13 = body4.newObject("PartDesign::Pad", "Pad012")
pad13.Profile = sketch22
pad13.Length = 0.9
pad13.Reversed = True
body5 = doc.addObject("PartDesign::Body", "Body004")

sketch23 = body5.newObject("Sketcher::SketchObject", "Sketch022")
sketch23.AttachmentSupport = (doc.getObject("YZ_Plane004"), [""])
sketch23.MapMode = "FlatFace"
sketch23.AttachmentOffset = App.Placement(V(0, 0, -2), App.Rotation())
sketch23.addGeometry(Part.Circle(V(56.5, -8.5, 0), V(0, 0, 1), 1), False)
sketch23.addConstraint([
    Sketcher.Constraint("Diameter", 0, 2.0),
    Sketcher.Constraint("DistanceX", -1, 1, 0, 3, 56.5),
    Sketcher.Constraint("DistanceY", 0, 3, -1, 1, 8.5),
])
pad14 = body5.newObject("PartDesign::Pad", "Pad013")
pad14.Profile = sketch23
pad14.Length = 9

doc.recompute()
